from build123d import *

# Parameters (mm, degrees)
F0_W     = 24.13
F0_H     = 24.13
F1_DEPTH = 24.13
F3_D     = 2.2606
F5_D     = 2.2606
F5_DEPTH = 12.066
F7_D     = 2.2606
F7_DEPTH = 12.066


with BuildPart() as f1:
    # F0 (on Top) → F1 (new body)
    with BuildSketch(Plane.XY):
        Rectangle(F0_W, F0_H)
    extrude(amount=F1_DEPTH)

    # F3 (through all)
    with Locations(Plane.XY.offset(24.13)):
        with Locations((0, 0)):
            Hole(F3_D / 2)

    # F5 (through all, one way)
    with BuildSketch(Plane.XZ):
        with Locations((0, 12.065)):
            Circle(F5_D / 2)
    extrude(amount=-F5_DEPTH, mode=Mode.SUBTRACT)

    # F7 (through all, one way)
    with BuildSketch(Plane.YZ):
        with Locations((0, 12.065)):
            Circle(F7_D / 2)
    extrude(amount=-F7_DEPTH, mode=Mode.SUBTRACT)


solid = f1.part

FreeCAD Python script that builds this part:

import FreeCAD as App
import Part
import Sketcher
from FreeCAD import Vector
Q = App.Units.Quantity

doc = App.newDocument("Part")
params = doc.addObject("Spreadsheet::Sheet", "Params")
for row, (alias, value) in enumerate([
    ("sketch1_width", "0.95 in"),
    ("pad1_length", "0.95 in"),
    ("sketch2_diameter", "0.089 in"),
    ("hole_diameter", "0.089 in"),
    ("sketch3_diameter", "0.089 in"),
    ("sketch4_diameter", "0.089 in"),
], start=1):
    params.set(f"A{row}", alias)
    params.set(f"B{row}", "=" + value)
    params.setAlias(f"B{row}", alias)

body = doc.addObject("PartDesign::Body", "Body")

# Sketch on XY plane
sketch1 = doc.addObject("Sketcher::SketchObject", "Sketch")
body.addObject(sketch1)
sketch1.AttachmentSupport = (doc.XY_Plane, [""])
sketch1.MapMode = "FlatFace"
sketch1.addGeometry(Part.LineSegment(Vector(-12, 12, 0), Vector(-12, -12, 0)), False)
sketch1.addGeometry(Part.LineSegment(Vector(-12, -12, 0), Vector(12, -12, 0)), False)
sketch1.addGeometry(Part.LineSegment(Vector(12, -12, 0), Vector(12, 12, 0)), False)
sketch1.addGeometry(Part.LineSegment(Vector(12, 12, 0), Vector(-12, 12, 0)), False)
sketch1.addConstraint(Sketcher.Constraint("Coincident", 0, 2, 1, 1))
sketch1.addConstraint(Sketcher.Constraint("Coincident", 1, 2, 2, 1))
sketch1.addConstraint(Sketcher.Constraint("Coincident", 2, 2, 3, 1))
sketch1.addConstraint(Sketcher.Constraint("Coincident", 3, 2, 0, 1))
sketch1.addConstraint(Sketcher.Constraint("Vertical", 0))
sketch1.addConstraint(Sketcher.Constraint("Horizontal", 1))
sketch1.addConstraint(Sketcher.Constraint("Vertical", 2))
sketch1.addConstraint(Sketcher.Constraint("Horizontal", 3))
sketch1.addConstraint(Sketcher.Constraint("Symmetric", 0, 2, 2, 2, -1, 1))
sketch1.addConstraint(Sketcher.Constraint("Equal", 3, 0))
sketch1.addConstraint(Sketcher.Constraint("DistanceX", 1, 1, 1, 2, Q("0.95 in")))
sketch1.setExpression("Constraints[10]", "Params.sketch1_width")
pad1 = doc.addObject("PartDesign::Pad", "Pad")
body.addObject(pad1)
pad1.Profile = sketch1
pad1.setExpression("Length", "Params.pad1_length")

# Sketch on XY plane
sketch2 = doc.addObject("Sketcher::SketchObject", "Sketch001")
body.addObject(sketch2)
sketch2.AttachmentSupport = (doc.XY_Plane, [""])
sketch2.MapMode = "FlatFace"
sketch2.AttachmentOffset = App.Placement(Vector(0, 0, 0.95 * 25.4), App.Rotation())
sketch2.addGeometry(Part.Circle(Vector(0, 0, 0), Vector(0, 0, 1), 1.1), False)
sketch2.addConstraint(Sketcher.Constraint("Coincident", 0, 3, -1, 1))
sketch2.addConstraint(Sketcher.Constraint("Diameter", 0, Q("0.089 in")))
sketch2.setExpression("Constraints[1]", "Params.sketch2_diameter")
doc.recompute()
hole = doc.addObject("PartDesign::Hole", "Hole")
body.addObject(hole)
hole.Profile = sketch2
hole.ThreadType = "None"
hole.setExpression("Diameter", "Params.hole_diameter")
hole.DepthType = "ThroughAll"

# Sketch on XZ plane
sketch3 = doc.addObject("Sketcher::SketchObject", "Sketch002")
body.addObject(sketch3)
sketch3.AttachmentSupport = (doc.XZ_Plane, [""])
sketch3.MapMode = "FlatFace"
sketch3.addGeometry(Part.Circle(Vector(0, 12.1, 0), Vector(0, 0, 1), 1.1), False)
sketch3.addConstraint(Sketcher.Constraint("PointOnObject", 0, 3, -2))
sketch3.addConstraint(Sketcher.Constraint("Diameter", 0, Q("0.089 in")))
sketch3.addConstraint(Sketcher.Constraint("DistanceY", -1, 1, 0, 3, Q("0.475 in")))
sketch3.setExpression("Constraints[1]", "Params.sketch3_diameter")
pocket1 = doc.addObject("PartDesign::Pocket", "Pocket")
body.addObject(pocket1)
pocket1.Profile = sketch3
pocket1.Type = "ThroughAll"

# Sketch on YZ plane
sketch4 = doc.addObject("Sketcher::SketchObject", "Sketch003")
body.addObject(sketch4)
sketch4.AttachmentSupport = (doc.YZ_Plane, [""])
sketch4.MapMode = "FlatFace"
sketch4.addGeometry(Part.Circle(Vector(0, 12.1, 0), Vector(0, 0, 1), 1.1), False)
sketch4.addConstraint(Sketcher.Constraint("PointOnObject", 0, 3, -2))
sketch4.addConstraint(Sketcher.Constraint("Diameter", 0, Q("0.089 in")))
sketch4.addConstraint(Sketcher.Constraint("DistanceY", -1, 1, 0, 3, Q("0.475 in")))
sketch4.setExpression("Constraints[1]", "Params.sketch4_diameter")
pocket2 = doc.addObject("PartDesign::Pocket", "Pocket001")
body.addObject(pocket2)
pocket2.Profile = sketch4
pocket2.Type = "ThroughAll"

doc.recompute()
